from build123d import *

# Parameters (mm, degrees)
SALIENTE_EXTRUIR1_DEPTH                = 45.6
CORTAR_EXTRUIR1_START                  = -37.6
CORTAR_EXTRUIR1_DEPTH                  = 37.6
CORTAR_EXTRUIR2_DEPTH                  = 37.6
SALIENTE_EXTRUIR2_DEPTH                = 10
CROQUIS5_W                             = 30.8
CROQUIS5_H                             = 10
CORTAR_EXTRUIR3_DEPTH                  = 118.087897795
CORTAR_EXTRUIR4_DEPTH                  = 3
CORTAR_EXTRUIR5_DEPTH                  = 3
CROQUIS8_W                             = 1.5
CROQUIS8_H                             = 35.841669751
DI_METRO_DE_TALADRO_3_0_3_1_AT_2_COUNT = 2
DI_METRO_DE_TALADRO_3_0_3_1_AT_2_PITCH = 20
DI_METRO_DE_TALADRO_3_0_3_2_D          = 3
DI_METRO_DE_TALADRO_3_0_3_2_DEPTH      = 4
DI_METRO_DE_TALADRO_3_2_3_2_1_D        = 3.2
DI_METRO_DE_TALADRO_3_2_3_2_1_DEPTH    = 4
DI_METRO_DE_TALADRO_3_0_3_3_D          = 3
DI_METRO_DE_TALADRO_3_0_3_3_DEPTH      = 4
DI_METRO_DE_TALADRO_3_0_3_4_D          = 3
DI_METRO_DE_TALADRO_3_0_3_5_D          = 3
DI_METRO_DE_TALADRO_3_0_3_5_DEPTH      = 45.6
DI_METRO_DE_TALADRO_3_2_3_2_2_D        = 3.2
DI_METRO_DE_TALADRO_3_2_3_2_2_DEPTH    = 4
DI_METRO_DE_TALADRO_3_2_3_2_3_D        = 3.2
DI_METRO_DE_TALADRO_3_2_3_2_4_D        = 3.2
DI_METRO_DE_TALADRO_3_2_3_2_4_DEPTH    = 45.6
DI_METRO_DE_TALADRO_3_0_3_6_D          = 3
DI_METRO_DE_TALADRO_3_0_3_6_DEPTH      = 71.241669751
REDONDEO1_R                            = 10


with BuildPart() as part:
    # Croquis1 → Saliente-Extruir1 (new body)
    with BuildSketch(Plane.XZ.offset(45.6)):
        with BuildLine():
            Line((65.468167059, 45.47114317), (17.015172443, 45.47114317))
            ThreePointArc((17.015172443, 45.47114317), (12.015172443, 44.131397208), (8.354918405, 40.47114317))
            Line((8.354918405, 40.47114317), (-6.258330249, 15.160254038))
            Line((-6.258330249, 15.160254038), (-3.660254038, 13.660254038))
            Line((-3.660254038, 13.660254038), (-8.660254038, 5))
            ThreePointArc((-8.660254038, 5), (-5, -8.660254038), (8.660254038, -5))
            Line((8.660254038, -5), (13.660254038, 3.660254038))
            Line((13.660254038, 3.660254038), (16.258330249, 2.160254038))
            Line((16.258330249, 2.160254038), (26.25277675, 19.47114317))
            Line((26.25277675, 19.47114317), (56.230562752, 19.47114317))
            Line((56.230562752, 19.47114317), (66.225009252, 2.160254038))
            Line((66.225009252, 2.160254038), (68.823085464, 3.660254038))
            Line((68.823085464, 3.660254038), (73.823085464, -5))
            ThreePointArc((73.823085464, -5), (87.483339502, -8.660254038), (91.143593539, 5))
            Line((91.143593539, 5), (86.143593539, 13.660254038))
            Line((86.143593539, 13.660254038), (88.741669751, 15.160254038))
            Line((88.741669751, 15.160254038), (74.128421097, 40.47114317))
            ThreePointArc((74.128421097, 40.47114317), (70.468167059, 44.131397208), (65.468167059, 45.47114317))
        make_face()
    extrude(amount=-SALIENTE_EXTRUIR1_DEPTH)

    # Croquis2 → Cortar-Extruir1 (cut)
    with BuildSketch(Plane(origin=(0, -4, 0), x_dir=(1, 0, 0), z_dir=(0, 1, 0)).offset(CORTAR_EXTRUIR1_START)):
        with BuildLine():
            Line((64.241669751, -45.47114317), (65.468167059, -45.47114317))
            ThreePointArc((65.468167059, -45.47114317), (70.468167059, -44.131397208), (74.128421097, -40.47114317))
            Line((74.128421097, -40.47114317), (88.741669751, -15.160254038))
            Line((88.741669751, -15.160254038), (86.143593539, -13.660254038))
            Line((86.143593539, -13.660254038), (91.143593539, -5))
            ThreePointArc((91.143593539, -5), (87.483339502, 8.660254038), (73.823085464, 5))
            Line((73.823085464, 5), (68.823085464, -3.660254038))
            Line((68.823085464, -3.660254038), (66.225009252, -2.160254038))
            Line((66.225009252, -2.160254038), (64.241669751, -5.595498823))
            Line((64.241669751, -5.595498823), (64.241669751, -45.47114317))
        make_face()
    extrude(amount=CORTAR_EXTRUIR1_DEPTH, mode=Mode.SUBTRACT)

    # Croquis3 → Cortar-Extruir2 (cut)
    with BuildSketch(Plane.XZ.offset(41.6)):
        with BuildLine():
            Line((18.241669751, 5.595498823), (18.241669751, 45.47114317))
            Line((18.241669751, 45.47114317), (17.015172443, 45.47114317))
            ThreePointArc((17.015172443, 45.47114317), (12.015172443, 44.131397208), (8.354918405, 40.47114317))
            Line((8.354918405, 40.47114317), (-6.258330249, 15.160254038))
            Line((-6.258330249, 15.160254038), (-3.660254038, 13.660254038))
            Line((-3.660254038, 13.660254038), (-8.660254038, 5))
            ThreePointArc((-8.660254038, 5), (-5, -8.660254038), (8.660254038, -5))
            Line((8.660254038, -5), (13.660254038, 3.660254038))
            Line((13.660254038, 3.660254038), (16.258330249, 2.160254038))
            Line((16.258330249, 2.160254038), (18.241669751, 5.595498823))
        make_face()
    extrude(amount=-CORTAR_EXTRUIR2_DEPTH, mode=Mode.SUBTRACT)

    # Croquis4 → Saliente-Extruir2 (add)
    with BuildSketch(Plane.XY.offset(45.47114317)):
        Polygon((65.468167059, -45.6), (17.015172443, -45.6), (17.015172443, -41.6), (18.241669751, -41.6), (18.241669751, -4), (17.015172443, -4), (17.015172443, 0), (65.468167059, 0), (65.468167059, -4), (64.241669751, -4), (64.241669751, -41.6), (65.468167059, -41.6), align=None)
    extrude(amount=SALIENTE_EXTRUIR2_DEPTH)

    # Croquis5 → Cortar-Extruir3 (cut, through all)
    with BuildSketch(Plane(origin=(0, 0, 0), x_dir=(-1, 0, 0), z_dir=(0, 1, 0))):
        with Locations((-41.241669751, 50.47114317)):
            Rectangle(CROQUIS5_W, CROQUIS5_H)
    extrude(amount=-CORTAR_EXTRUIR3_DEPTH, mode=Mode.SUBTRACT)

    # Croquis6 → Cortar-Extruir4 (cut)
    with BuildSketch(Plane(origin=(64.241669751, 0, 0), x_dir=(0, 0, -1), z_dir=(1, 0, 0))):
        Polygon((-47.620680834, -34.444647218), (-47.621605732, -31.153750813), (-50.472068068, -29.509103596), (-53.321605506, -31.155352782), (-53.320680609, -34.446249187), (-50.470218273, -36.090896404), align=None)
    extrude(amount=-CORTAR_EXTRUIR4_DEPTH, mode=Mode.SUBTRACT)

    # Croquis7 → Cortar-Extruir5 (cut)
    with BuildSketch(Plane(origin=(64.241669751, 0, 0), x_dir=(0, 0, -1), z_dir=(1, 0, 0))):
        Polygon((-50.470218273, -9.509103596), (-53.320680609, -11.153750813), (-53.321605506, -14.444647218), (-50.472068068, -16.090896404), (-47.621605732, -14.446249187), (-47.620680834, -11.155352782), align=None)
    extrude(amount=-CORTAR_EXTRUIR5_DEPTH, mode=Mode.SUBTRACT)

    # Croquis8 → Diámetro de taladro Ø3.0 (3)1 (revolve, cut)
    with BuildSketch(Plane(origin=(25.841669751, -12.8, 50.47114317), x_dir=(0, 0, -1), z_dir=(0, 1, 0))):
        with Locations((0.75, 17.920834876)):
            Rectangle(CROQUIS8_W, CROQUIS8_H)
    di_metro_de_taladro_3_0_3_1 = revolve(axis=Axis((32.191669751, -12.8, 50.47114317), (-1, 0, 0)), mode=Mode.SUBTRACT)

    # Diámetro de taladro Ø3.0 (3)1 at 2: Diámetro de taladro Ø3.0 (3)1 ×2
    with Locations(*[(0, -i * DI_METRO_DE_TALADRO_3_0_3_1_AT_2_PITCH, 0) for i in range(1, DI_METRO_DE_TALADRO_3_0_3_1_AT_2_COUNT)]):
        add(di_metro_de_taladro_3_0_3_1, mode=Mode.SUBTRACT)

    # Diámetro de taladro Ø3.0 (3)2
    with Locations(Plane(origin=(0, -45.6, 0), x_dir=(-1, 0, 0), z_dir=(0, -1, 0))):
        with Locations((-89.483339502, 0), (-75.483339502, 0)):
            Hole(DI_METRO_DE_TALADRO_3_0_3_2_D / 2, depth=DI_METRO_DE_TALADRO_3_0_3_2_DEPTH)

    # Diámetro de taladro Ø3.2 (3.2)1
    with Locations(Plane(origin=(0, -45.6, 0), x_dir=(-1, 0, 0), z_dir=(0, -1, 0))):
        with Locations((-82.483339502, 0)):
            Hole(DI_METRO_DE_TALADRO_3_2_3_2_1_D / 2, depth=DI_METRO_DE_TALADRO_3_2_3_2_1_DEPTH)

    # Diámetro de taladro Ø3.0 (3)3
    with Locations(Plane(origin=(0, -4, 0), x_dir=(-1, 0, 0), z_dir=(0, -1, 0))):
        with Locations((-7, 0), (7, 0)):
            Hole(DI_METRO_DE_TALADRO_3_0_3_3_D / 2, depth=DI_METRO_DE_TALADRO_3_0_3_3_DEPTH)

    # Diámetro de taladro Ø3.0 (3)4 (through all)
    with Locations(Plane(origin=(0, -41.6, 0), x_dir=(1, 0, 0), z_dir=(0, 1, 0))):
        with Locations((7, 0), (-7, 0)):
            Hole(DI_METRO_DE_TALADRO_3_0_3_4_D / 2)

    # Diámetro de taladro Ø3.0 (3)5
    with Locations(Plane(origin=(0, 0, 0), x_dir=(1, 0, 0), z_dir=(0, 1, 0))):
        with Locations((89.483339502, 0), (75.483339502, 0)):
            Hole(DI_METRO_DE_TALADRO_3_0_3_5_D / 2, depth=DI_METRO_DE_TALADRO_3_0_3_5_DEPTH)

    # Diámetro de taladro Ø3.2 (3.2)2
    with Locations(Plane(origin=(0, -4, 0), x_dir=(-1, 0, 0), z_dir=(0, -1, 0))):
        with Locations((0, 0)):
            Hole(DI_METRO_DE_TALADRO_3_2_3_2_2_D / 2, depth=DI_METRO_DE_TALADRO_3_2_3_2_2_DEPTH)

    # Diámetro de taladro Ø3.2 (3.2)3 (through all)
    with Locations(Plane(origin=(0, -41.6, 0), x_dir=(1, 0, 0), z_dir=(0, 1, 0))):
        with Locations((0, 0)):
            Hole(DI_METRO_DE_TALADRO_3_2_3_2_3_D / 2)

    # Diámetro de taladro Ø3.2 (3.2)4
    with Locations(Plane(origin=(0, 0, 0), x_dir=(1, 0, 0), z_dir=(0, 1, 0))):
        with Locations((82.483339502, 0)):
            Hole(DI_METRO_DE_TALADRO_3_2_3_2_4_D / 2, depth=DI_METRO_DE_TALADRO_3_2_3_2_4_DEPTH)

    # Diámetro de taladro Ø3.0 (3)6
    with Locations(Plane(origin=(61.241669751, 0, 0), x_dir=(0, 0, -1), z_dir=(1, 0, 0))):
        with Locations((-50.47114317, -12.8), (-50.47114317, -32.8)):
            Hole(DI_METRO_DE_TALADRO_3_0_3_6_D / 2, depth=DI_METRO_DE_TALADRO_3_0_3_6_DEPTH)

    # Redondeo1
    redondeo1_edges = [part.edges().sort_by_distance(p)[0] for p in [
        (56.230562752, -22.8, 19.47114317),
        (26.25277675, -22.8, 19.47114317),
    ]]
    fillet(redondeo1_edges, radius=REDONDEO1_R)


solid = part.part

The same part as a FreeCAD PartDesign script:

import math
import FreeCAD as App
import Part
import Sketcher
from FreeCAD import Vector
Q = App.Units.Quantity


def edges_at(feature, points):
    """Names of the edges that pass closest to the given points."""
    edges = feature.Shape.Edges
    near = lambda p: min(range(len(edges)), key=lambda i: edges[i].distToShape(Part.Vertex(*p))[0])
    return sorted({f"Edge{near(p) + 1}" for p in points})

doc = App.newDocument("Part")
body = doc.addObject("PartDesign::Body", "Body")

# Sketch on XZ plane
sketch1 = body.newObject("Sketcher::SketchObject", "Sketch")
sketch1.AttachmentSupport = (doc.getObject("XZ_Plane"), [""])
sketch1.MapMode = "FlatFace"
sketch1.AttachmentOffset = App.Placement(Vector(0, 0, 45.6), App.Rotation())
sketch1.addGeometry(Part.LineSegment(Vector(65.468167, 45.471143, 0), Vector(17.015172, 45.471143, 0)), False)
sketch1.addGeometry(Part.ArcOfCircle(Part.Circle(Vector(17.015172, 35.471143, 0), Vector(0, 0, 1), 10), math.radians(90), math.radians(150)), False)
sketch1.addGeometry(Part.LineSegment(Vector(8.354918, 40.471143, 0), Vector(-6.25833, 15.160254, 0)), False)
sketch1.addGeometry(Part.LineSegment(Vector(-6.25833, 15.160254, 0), Vector(-3.660254, 13.660254, 0)), False)
sketch1.addGeometry(Part.LineSegment(Vector(-3.660254, 13.660254, 0), Vector(-8.660254, 5, 0)), False)
sketch1.addGeometry(Part.ArcOfCircle(Part.Circle(Vector(0, 0, 0), Vector(0, 0, 1), 10), math.radians(150), math.radians(330)), False)
sketch1.addGeometry(Part.LineSegment(Vector(8.660254, -5, 0), Vector(13.660254, 3.660254, 0)), False)
sketch1.addGeometry(Part.LineSegment(Vector(13.660254, 3.660254, 0), Vector(16.25833, 2.160254, 0)), False)
sketch1.addGeometry(Part.LineSegment(Vector(16.25833, 2.160254, 0), Vector(26.252777, 19.471143, 0)), False)
sketch1.addGeometry(Part.LineSegment(Vector(26.252777, 19.471143, 0), Vector(56.230563, 19.471143, 0)), False)
sketch1.addGeometry(Part.LineSegment(Vector(56.230563, 19.471143, 0), Vector(66.225009, 2.160254, 0)), False)
sketch1.addGeometry(Part.LineSegment(Vector(66.225009, 2.160254, 0), Vector(68.823085, 3.660254, 0)), False)
sketch1.addGeometry(Part.LineSegment(Vector(68.823085, 3.660254, 0), Vector(73.823085, -5, 0)), False)
sketch1.addGeometry(Part.ArcOfCircle(Part.Circle(Vector(82.48334, 0, 0), Vector(0, 0, 1), 10), math.radians(-150), math.radians(30)), False)
sketch1.addGeometry(Part.LineSegment(Vector(91.143594, 5, 0), Vector(86.143594, 13.660254, 0)), False)
sketch1.addGeometry(Part.LineSegment(Vector(86.143594, 13.660254, 0), Vector(88.74167, 15.160254, 0)), False)
sketch1.addGeometry(Part.LineSegment(Vector(88.74167, 15.160254, 0), Vector(74.128421, 40.471143, 0)), False)
sketch1.addGeometry(Part.ArcOfCircle(Part.Circle(Vector(65.468167, 35.471143, 0), Vector(0, 0, 1), 10), math.radians(30), math.radians(90)), False)
sketch1.addConstraint(Sketcher.Constraint("Tangent", 0, 2, 1, 1))
sketch1.addConstraint(Sketcher.Constraint("Tangent", 1, 2, 2, 1))
sketch1.addConstraint(Sketcher.Constraint("Coincident", 2, 2, 3, 1))
sketch1.addConstraint(Sketcher.Constraint("Coincident", 3, 2, 4, 1))
sketch1.addConstraint(Sketcher.Constraint("Tangent", 4, 2, 5, 1))
sketch1.addConstraint(Sketcher.Constraint("Tangent", 5, 2, 6, 1))
sketch1.addConstraint(Sketcher.Constraint("Coincident", 6, 2, 7, 1))
sketch1.addConstraint(Sketcher.Constraint("Coincident", 7, 2, 8, 1))
sketch1.addConstraint(Sketcher.Constraint("Coincident", 8, 2, 9, 1))
sketch1.addConstraint(Sketcher.Constraint("Coincident", 9, 2, 10, 1))
sketch1.addConstraint(Sketcher.Constraint("Coincident", 10, 2, 11, 1))
sketch1.addConstraint(Sketcher.Constraint("Coincident", 11, 2, 12, 1))
sketch1.addConstraint(Sketcher.Constraint("Tangent", 12, 2, 13, 1))
sketch1.addConstraint(Sketcher.Constraint("Tangent", 13, 2, 14, 1))
sketch1.addConstraint(Sketcher.Constraint("Coincident", 14, 2, 15, 1))
sketch1.addConstraint(Sketcher.Constraint("Coincident", 15, 2, 16, 1))
sketch1.addConstraint(Sketcher.Constraint("Tangent", 16, 2, 17, 1))
sketch1.addConstraint(Sketcher.Constraint("Tangent", 17, 2, 0, 1))
sketch1.addConstraint(Sketcher.Constraint("Horizontal", 0))
sketch1.addConstraint(Sketcher.Constraint("Horizontal", 9))
sketch1.addConstraint(Sketcher.Constraint("Coincident", 5, 3, -1, 1))
sketch1.addConstraint(Sketcher.Constraint("Equal", 1, 5))
sketch1.addConstraint(Sketcher.Constraint("Equal", 5, 13))
sketch1.addConstraint(Sketcher.Constraint("Equal", 13, 17))
sketch1.addConstraint(Sketcher.Constraint("PointOnObject", 13, 3, -1))
sketch1.addConstraint(Sketcher.Constraint("Perpendicular", 2, 3))
sketch1.addConstraint(Sketcher.Constraint("Perpendicular", 3, 4))
sketch1.addConstraint(Sketcher.Constraint("Parallel", 4, 6))
sketch1.addConstraint(Sketcher.Constraint("Perpendicular", 6, 7))
sketch1.addConstraint(Sketcher.Constraint("Perpendicular", 7, 8))
sketch1.addConstraint(Sketcher.Constraint("Perpendicular", 10, 11))
sketch1.addConstraint(Sketcher.Constraint("Perpendicular", 11, 12))
sketch1.addConstraint(Sketcher.Constraint("Parallel", 12, 14))
sketch1.addConstraint(Sketcher.Constraint("Perpendicular", 14, 15))
sketch1.addConstraint(Sketcher.Constraint("Perpendicular", 15, 16))
sketch1.addConstraint(Sketcher.Constraint("Horizontal", 7, 2, 10, 2))
sketch1.addConstraint(Sketcher.Constraint("Horizontal", 6, 2, 11, 2))
sketch1.addConstraint(Sketcher.Constraint("Horizontal", 5, 2, 12, 2))
sketch1.addConstraint(Sketcher.Constraint("Horizontal", 3, 2, 14, 2))
sketch1.addConstraint(Sketcher.Constraint("Horizontal", 2, 2, 15, 2))
sketch1.addConstraint(Sketcher.Constraint("Equal", 4, 6))
sketch1.addConstraint(Sketcher.Constraint("Equal", 3, 7))
sketch1.addConstraint(Sketcher.Constraint("Radius", 1, 10.0))
sketch1.addConstraint(Sketcher.Constraint("Angle", 2, Q("-120 deg")))
sketch1.addConstraint(Sketcher.Constraint("Distance", 3, 3.0))
sketch1.addConstraint(Sketcher.Constraint("Distance", 4, 10.0))
sketch1.addConstraint(Sketcher.Constraint("DistanceY", 8, 2, 1, 3, 16.0))
sketch1.addConstraint(Sketcher.Constraint("DistanceX", 0, 2, 0, 1, 48.452995))
sketch1.addConstraint(Sketcher.Constraint("DistanceX", -1, 1, 13, 3, 82.48334))
pad1 = body.newObject("PartDesign::Pad", "Pad")
pad1.Profile = sketch1
pad1.Length = 45.6
pad1.Reversed = True

# Sketch on XZ plane
sketch2 = body.newObject("Sketcher::SketchObject", "Sketch001")
sketch2.AttachmentSupport = (doc.getObject("XZ_Plane"), [""])
sketch2.MapMode = "FlatFace"
sketch2.AttachmentOffset = App.Placement(Vector(0, 0, 41.6), App.Rotation())
sketch2.addGeometry(Part.LineSegment(Vector(64.24167, 45.471143, 0), Vector(65.468167, 45.471143, 0)), False)
sketch2.addGeometry(Part.ArcOfCircle(Part.Circle(Vector(65.468167, 35.471143, 0), Vector(0, 0, 1), 10), math.radians(30), math.radians(90)), False)
sketch2.addGeometry(Part.LineSegment(Vector(74.128421, 40.471143, 0), Vector(88.74167, 15.160254, 0)), False)
sketch2.addGeometry(Part.LineSegment(Vector(88.74167, 15.160254, 0), Vector(86.143594, 13.660254, 0)), False)
sketch2.addGeometry(Part.LineSegment(Vector(86.143594, 13.660254, 0), Vector(91.143594, 5, 0)), False)
sketch2.addGeometry(Part.ArcOfCircle(Part.Circle(Vector(82.48334, 0, 0), Vector(0, 0, 1), 10), math.radians(-150), math.radians(30)), False)
sketch2.addGeometry(Part.LineSegment(Vector(73.823085, -5, 0), Vector(68.823085, 3.660254, 0)), False)
sketch2.addGeometry(Part.LineSegment(Vector(68.823085, 3.660254, 0), Vector(66.225009, 2.160254, 0)), False)
sketch2.addGeometry(Part.LineSegment(Vector(66.225009, 2.160254, 0), Vector(64.24167, 5.595499, 0)), False)
sketch2.addGeometry(Part.LineSegment(Vector(64.24167, 5.595499, 0), Vector(64.24167, 45.471143, 0)), False)
sketch2.addConstraint(Sketcher.Constraint("Tangent", 0, 2, 1, 2))
sketch2.addConstraint(Sketcher.Constraint("Tangent", 1, 1, 2, 1))
sketch2.addConstraint(Sketcher.Constraint("Coincident", 2, 2, 3, 1))
sketch2.addConstraint(Sketcher.Constraint("Coincident", 3, 2, 4, 1))
sketch2.addConstraint(Sketcher.Constraint("Tangent", 4, 2, 5, 2))
sketch2.addConstraint(Sketcher.Constraint("Tangent", 5, 1, 6, 1))
sketch2.addConstraint(Sketcher.Constraint("Coincident", 6, 2, 7, 1))
sketch2.addConstraint(Sketcher.Constraint("Coincident", 7, 2, 8, 1))
sketch2.addConstraint(Sketcher.Constraint("Coincident", 8, 2, 9, 1))
sketch2.addConstraint(Sketcher.Constraint("Coincident", 9, 2, 0, 1))
sketch2.addConstraint(Sketcher.Constraint("Horizontal", 0))
sketch2.addConstraint(Sketcher.Constraint("Vertical", 9))
sketch2.addConstraint(Sketcher.Constraint("Equal", 1, 5))
sketch2.addConstraint(Sketcher.Constraint("PointOnObject", 5, 3, -1))
sketch2.addConstraint(Sketcher.Constraint("Perpendicular", 2, 3))
sketch2.addConstraint(Sketcher.Constraint("Perpendicular", 3, 4))
sketch2.addConstraint(Sketcher.Constraint("Parallel", 4, 6))
sketch2.addConstraint(Sketcher.Constraint("Perpendicular", 6, 7))
sketch2.addConstraint(Sketcher.Constraint("Perpendicular", 7, 8))
sketch2.addConstraint(Sketcher.Constraint("Equal", 4, 6))
sketch2.addConstraint(Sketcher.Constraint("Equal", 3, 7))
sketch2.addConstraint(Sketcher.Constraint("Radius", 1, 10.0))
sketch2.addConstraint(Sketcher.Constraint("Angle", 2, Q("-60 deg")))
sketch2.addConstraint(Sketcher.Constraint("Distance", 3, 3.0))
sketch2.addConstraint(Sketcher.Constraint("Distance", 4, 10.0))
sketch2.addConstraint(Sketcher.Constraint("DistanceX", 9, 2, 2, 2, 24.5))
sketch2.addConstraint(Sketcher.Constraint("DistanceX", 0, 1, 0, 2, 1.226497))
sketch2.addConstraint(Sketcher.Constraint("DistanceX", -1, 1, 5, 3, 82.48334))
pocket1 = body.newObject("PartDesign::Pocket", "Pocket")
pocket1.Profile = sketch2
pocket1.Length = 37.6

# Sketch on XZ plane
sketch3 = body.newObject("Sketcher::SketchObject", "Sketch002")
sketch3.AttachmentSupport = (doc.getObject("XZ_Plane"), [""])
sketch3.MapMode = "FlatFace"
sketch3.AttachmentOffset = App.Placement(Vector(0, 0, 41.6), App.Rotation())
sketch3.addGeometry(Part.LineSegment(Vector(18.24167, 5.595499, 0), Vector(18.24167, 45.471143, 0)), False)
sketch3.addGeometry(Part.LineSegment(Vector(18.24167, 45.471143, 0), Vector(17.015172, 45.471143, 0)), False)
sketch3.addGeometry(Part.ArcOfCircle(Part.Circle(Vector(17.015172, 35.471143, 0), Vector(0, 0, 1), 10), math.radians(90), math.radians(150)), False)
sketch3.addGeometry(Part.LineSegment(Vector(8.354918, 40.471143, 0), Vector(-6.25833, 15.160254, 0)), False)
sketch3.addGeometry(Part.LineSegment(Vector(-6.25833, 15.160254, 0), Vector(-3.660254, 13.660254, 0)), False)
sketch3.addGeometry(Part.LineSegment(Vector(-3.660254, 13.660254, 0), Vector(-8.660254, 5, 0)), False)
sketch3.addGeometry(Part.ArcOfCircle(Part.Circle(Vector(0, 0, 0), Vector(0, 0, 1), 10), math.radians(150), math.radians(330)), False)
sketch3.addGeometry(Part.LineSegment(Vector(8.660254, -5, 0), Vector(13.660254, 3.660254, 0)), False)
sketch3.addGeometry(Part.LineSegment(Vector(13.660254, 3.660254, 0), Vector(16.25833, 2.160254, 0)), False)
sketch3.addGeometry(Part.LineSegment(Vector(16.25833, 2.160254, 0), Vector(18.24167, 5.595499, 0)), False)
sketch3.addConstraint(Sketcher.Constraint("Coincident", 0, 2, 1, 1))
sketch3.addConstraint(Sketcher.Constraint("Tangent", 1, 2, 2, 1))
sketch3.addConstraint(Sketcher.Constraint("Tangent", 2, 2, 3, 1))
sketch3.addConstraint(Sketcher.Constraint("Coincident", 3, 2, 4, 1))
sketch3.addConstraint(Sketcher.Constraint("Coincident", 4, 2, 5, 1))
sketch3.addConstraint(Sketcher.Constraint("Tangent", 5, 2, 6, 1))
sketch3.addConstraint(Sketcher.Constraint("Tangent", 6, 2, 7, 1))
sketch3.addConstraint(Sketcher.Constraint("Coincident", 7, 2, 8, 1))
sketch3.addConstraint(Sketcher.Constraint("Coincident", 8, 2, 9, 1))
sketch3.addConstraint(Sketcher.Constraint("Coincident", 9, 2, 0, 1))
sketch3.addConstraint(Sketcher.Constraint("Vertical", 0))
sketch3.addConstraint(Sketcher.Constraint("Horizontal", 1))
sketch3.addConstraint(Sketcher.Constraint("Coincident", 6, 3, -1, 1))
sketch3.addConstraint(Sketcher.Constraint("Equal", 2, 6))
sketch3.addConstraint(Sketcher.Constraint("Perpendicular", 3, 4))
sketch3.addConstraint(Sketcher.Constraint("Perpendicular", 4, 5))
sketch3.addConstraint(Sketcher.Constraint("Parallel", 5, 7))
sketch3.addConstraint(Sketcher.Constraint("Perpendicular", 7, 8))
sketch3.addConstraint(Sketcher.Constraint("Perpendicular", 8, 9))
sketch3.addConstraint(Sketcher.Constraint("Equal", 5, 7))
sketch3.addConstraint(Sketcher.Constraint("Equal", 4, 8))
sketch3.addConstraint(Sketcher.Constraint("Radius", 2, 10.0))
sketch3.addConstraint(Sketcher.Constraint("Angle", 3, Q("-120 deg")))
sketch3.addConstraint(Sketcher.Constraint("Distance", 4, 3.0))
sketch3.addConstraint(Sketcher.Constraint("Distance", 5, 10.0))
sketch3.addConstraint(Sketcher.Constraint("DistanceX", 3, 2, 0, 2, 24.5))
sketch3.addConstraint(Sketcher.Constraint("DistanceX", 1, 2, 1, 1, 1.226497))
pocket2 = body.newObject("PartDesign::Pocket", "Pocket001")
pocket2.Profile = sketch3
pocket2.Length = 37.6

# Sketch on XY plane
sketch4 = body.newObject("Sketcher::SketchObject", "Sketch003")
sketch4.AttachmentSupport = (doc.getObject("XY_Plane"), [""])
sketch4.MapMode = "FlatFace"
sketch4.AttachmentOffset = App.Placement(Vector(0, 0, 45.471143), App.Rotation())
sketch4.addGeometry(Part.LineSegment(Vector(17.015172, -45.6, 0), Vector(65.468167, -45.6, 0)), False)
sketch4.addGeometry(Part.LineSegment(Vector(65.468167, -45.6, 0), Vector(65.468167, -41.6, 0)), False)
sketch4.addGeometry(Part.LineSegment(Vector(65.468167, -41.6, 0), Vector(64.24167, -41.6, 0)), False)
sketch4.addGeometry(Part.LineSegment(Vector(64.24167, -41.6, 0), Vector(64.24167, -4, 0)), False)
sketch4.addGeometry(Part.LineSegment(Vector(64.24167, -4, 0), Vector(65.468167, -4, 0)), False)
sketch4.addGeometry(Part.LineSegment(Vector(65.468167, -4, 0), Vector(65.468167, 0, 0)), False)
sketch4.addGeometry(Part.LineSegment(Vector(65.468167, 0, 0), Vector(17.015172, 0, 0)), False)
sketch4.addGeometry(Part.LineSegment(Vector(17.015172, 0, 0), Vector(17.015172, -4, 0)), False)
sketch4.addGeometry(Part.LineSegment(Vector(17.015172, -4, 0), Vector(18.24167, -4, 0)), False)
sketch4.addGeometry(Part.LineSegment(Vector(18.24167, -4, 0), Vector(18.24167, -41.6, 0)), False)
sketch4.addGeometry(Part.LineSegment(Vector(18.24167, -41.6, 0), Vector(17.015172, -41.6, 0)), False)
sketch4.addGeometry(Part.LineSegment(Vector(17.015172, -41.6, 0), Vector(17.015172, -45.6, 0)), False)
sketch4.addConstraint(Sketcher.Constraint("Coincident", 0, 2, 1, 1))
sketch4.addConstraint(Sketcher.Constraint("Coincident", 1, 2, 2, 1))
sketch4.addConstraint(Sketcher.Constraint("Coincident", 2, 2, 3, 1))
sketch4.addConstraint(Sketcher.Constraint("Coincident", 3, 2, 4, 1))
sketch4.addConstraint(Sketcher.Constraint("Coincident", 4, 2, 5, 1))
sketch4.addConstraint(Sketcher.Constraint("Coincident", 5, 2, 6, 1))
sketch4.addConstraint(Sketcher.Constraint("Coincident", 6, 2, 7, 1))
sketch4.addConstraint(Sketcher.Constraint("Coincident", 7, 2, 8, 1))
sketch4.addConstraint(Sketcher.Constraint("Coincident", 8, 2, 9, 1))
sketch4.addConstraint(Sketcher.Constraint("Coincident", 9, 2, 10, 1))
sketch4.addConstraint(Sketcher.Constraint("Coincident", 10, 2, 11, 1))
sketch4.addConstraint(Sketcher.Constraint("Coincident", 11, 2, 0, 1))
sketch4.addConstraint(Sketcher.Constraint("Horizontal", 0))
sketch4.addConstraint(Sketcher.Constraint("Vertical", 1))
sketch4.addConstraint(Sketcher.Constraint("Horizontal", 2))
sketch4.addConstraint(Sketcher.Constraint("Vertical", 3))
sketch4.addConstraint(Sketcher.Constraint("Horizontal", 4))
sketch4.addConstraint(Sketcher.Constraint("Vertical", 5))
sketch4.addConstraint(Sketcher.Constraint("Horizontal", 6))
sketch4.addConstraint(Sketcher.Constraint("Vertical", 7))
sketch4.addConstraint(Sketcher.Constraint("Horizontal", 8))
sketch4.addConstraint(Sketcher.Constraint("Vertical", 9))
sketch4.addConstraint(Sketcher.Constraint("Horizontal", 10))
sketch4.addConstraint(Sketcher.Constraint("Vertical", 11))
sketch4.addConstraint(Sketcher.Constraint("PointOnObject", 5, 2, -1))
sketch4.addConstraint(Sketcher.Constraint("Horizontal", 4, 2, 7, 2))
sketch4.addConstraint(Sketcher.Constraint("Horizontal", 2, 2, 9, 2))
sketch4.addConstraint(Sketcher.Constraint("Vertical", 1, 2, 4, 2))
sketch4.addConstraint(Sketcher.Constraint("Vertical", 7, 2, 10, 2))
sketch4.addConstraint(Sketcher.Constraint("Equal", 4, 8))
sketch4.addConstraint(Sketcher.Constraint("Equal", 1, 5))
sketch4.addConstraint(Sketcher.Constraint("DistanceY", 1, 1, 1, 2, 4.0))
sketch4.addConstraint(Sketcher.Constraint("DistanceY", 3, 1, 3, 2, 37.6))
sketch4.addConstraint(Sketcher.Constraint("DistanceX", 8, 2, 3, 2, 46.0))
sketch4.addConstraint(Sketcher.Constraint("DistanceX", 0, 1, 0, 2, 48.452995))
sketch4.addConstraint(Sketcher.Constraint("DistanceX", -1, 1, 2, 2, 64.24167))
pad2 = body.newObject("PartDesign::Pad", "Pad001")
pad2.Profile = sketch4
pad2.Length = 10

# Sketch on XZ plane
sketch5 = body.newObject("Sketcher::SketchObject", "Sketch004")
sketch5.AttachmentSupport = (doc.getObject("XZ_Plane"), [""])
sketch5.MapMode = "FlatFace"
sketch5.addGeometry(Part.LineSegment(Vector(56.64167, 55.471143, 0), Vector(56.64167, 45.471143, 0)), False)
sketch5.addGeometry(Part.LineSegment(Vector(56.64167, 45.471143, 0), Vector(25.84167, 45.471143, 0)), False)
sketch5.addGeometry(Part.LineSegment(Vector(25.84167, 45.471143, 0), Vector(25.84167, 55.471143, 0)), False)
sketch5.addGeometry(Part.LineSegment(Vector(25.84167, 55.471143, 0), Vector(56.64167, 55.471143, 0)), False)
sketch5.addConstraint(Sketcher.Constraint("Coincident", 0, 2, 1, 1))
sketch5.addConstraint(Sketcher.Constraint("Coincident", 1, 2, 2, 1))
sketch5.addConstraint(Sketcher.Constraint("Coincident", 2, 2, 3, 1))
sketch5.addConstraint(Sketcher.Constraint("Coincident", 3, 2, 0, 1))
sketch5.addConstraint(Sketcher.Constraint("Vertical", 0))
sketch5.addConstraint(Sketcher.Constraint("Horizontal", 1))
sketch5.addConstraint(Sketcher.Constraint("Vertical", 2))
sketch5.addConstraint(Sketcher.Constraint("Horizontal", 3))
sketch5.addConstraint(Sketcher.Constraint("DistanceY", 0, 2, 0, 1, 10.0))
sketch5.addConstraint(Sketcher.Constraint("DistanceX", 1, 2, 1, 1, 30.8))
sketch5.addConstraint(Sketcher.Constraint("DistanceX", -1, 1, 0, 2, 56.64167))
sketch5.addConstraint(Sketcher.Constraint("DistanceY", -1, 1, 0, 2, 45.471143))
pocket3 = body.newObject("PartDesign::Pocket", "Pocket002")
pocket3.Profile = sketch5
pocket3.Type = "ThroughAll"
pocket3.Reversed = True

# Sketch on YZ plane
sketch6 = body.newObject("Sketcher::SketchObject", "Sketch005")
sketch6.AttachmentSupport = (doc.getObject("YZ_Plane"), [""])
sketch6.MapMode = "FlatFace"
sketch6.AttachmentOffset = App.Placement(Vector(0, 0, 64.24167), App.Rotation())
sketch6.addGeometry(Part.LineSegment(Vector(-34.444647, 47.620681, 0), Vector(-31.153751, 47.621606, 0)), False)
sketch6.addGeometry(Part.LineSegment(Vector(-31.153751, 47.621606, 0), Vector(-29.509104, 50.472068, 0)), False)
sketch6.addGeometry(Part.LineSegment(Vector(-29.509104, 50.472068, 0), Vector(-31.155353, 53.321606, 0)), False)
sketch6.addGeometry(Part.LineSegment(Vector(-31.155353, 53.321606, 0), Vector(-34.446249, 53.320681, 0)), False)
sketch6.addGeometry(Part.LineSegment(Vector(-34.446249, 53.320681, 0), Vector(-36.090896, 50.470218, 0)), False)
sketch6.addGeometry(Part.LineSegment(Vector(-36.090896, 50.470218, 0), Vector(-34.444647, 47.620681, 0)), False)
sketch6.addConstraint(Sketcher.Constraint("Coincident", 0, 2, 1, 1))
sketch6.addConstraint(Sketcher.Constraint("Coincident", 1, 2, 2, 1))
sketch6.addConstraint(Sketcher.Constraint("Coincident", 2, 2, 3, 1))
sketch6.addConstraint(Sketcher.Constraint("Coincident", 3, 2, 4, 1))
sketch6.addConstraint(Sketcher.Constraint("Coincident", 4, 2, 5, 1))
sketch6.addConstraint(Sketcher.Constraint("Coincident", 5, 2, 0, 1))
sketch6.addConstraint(Sketcher.Constraint("Parallel", 0, 3))
sketch6.addConstraint(Sketcher.Constraint("Parallel", 1, 4))
sketch6.addConstraint(Sketcher.Constraint("Parallel", 2, 5))
sketch6.addConstraint(Sketcher.Constraint("Equal", 0, 1))
sketch6.addConstraint(Sketcher.Constraint("Equal", 1, 2))
sketch6.addConstraint(Sketcher.Constraint("Equal", 2, 3))
sketch6.addConstraint(Sketcher.Constraint("DistanceY", 0, 2, 2, 2, 5.7))
sketch6.addConstraint(Sketcher.Constraint("DistanceX", 2, 2, 0, 2, 0.001602))
sketch6.addConstraint(Sketcher.Constraint("DistanceX", 3, 2, 0, 2, 3.292498))
sketch6.addConstraint(Sketcher.Constraint("DistanceX", 0, 2, -1, 1, 31.153751))
sketch6.addConstraint(Sketcher.Constraint("DistanceY", -1, 1, 1, 2, 50.472068))
sketch6.addConstraint(Sketcher.Constraint("DistanceY", -1, 1, 3, 2, 53.320681))
pocket4 = body.newObject("PartDesign::Pocket", "Pocket003")
pocket4.Profile = sketch6
pocket4.Length = 3

# Sketch on YZ plane
sketch7 = body.newObject("Sketcher::SketchObject", "Sketch006")
sketch7.AttachmentSupport = (doc.getObject("YZ_Plane"), [""])
sketch7.MapMode = "FlatFace"
sketch7.AttachmentOffset = App.Placement(Vector(0, 0, 64.24167), App.Rotation())
sketch7.addGeometry(Part.LineSegment(Vector(-9.509104, 50.470218, 0), Vector(-11.153751, 53.320681, 0)), False)
sketch7.addGeometry(Part.LineSegment(Vector(-11.153751, 53.320681, 0), Vector(-14.444647, 53.321606, 0)), False)
sketch7.addGeometry(Part.LineSegment(Vector(-14.444647, 53.321606, 0), Vector(-16.090896, 50.472068, 0)), False)
sketch7.addGeometry(Part.LineSegment(Vector(-16.090896, 50.472068, 0), Vector(-14.446249, 47.621606, 0)), False)
sketch7.addGeometry(Part.LineSegment(Vector(-14.446249, 47.621606, 0), Vector(-11.155353, 47.620681, 0)), False)
sketch7.addGeometry(Part.LineSegment(Vector(-11.155353, 47.620681, 0), Vector(-9.509104, 50.470218, 0)), False)
sketch7.addConstraint(Sketcher.Constraint("Coincident", 0, 2, 1, 1))
sketch7.addConstraint(Sketcher.Constraint("Coincident", 1, 2, 2, 1))
sketch7.addConstraint(Sketcher.Constraint("Coincident", 2, 2, 3, 1))
sketch7.addConstraint(Sketcher.Constraint("Coincident", 3, 2, 4, 1))
sketch7.addConstraint(Sketcher.Constraint("Coincident", 4, 2, 5, 1))
sketch7.addConstraint(Sketcher.Constraint("Coincident", 5, 2, 0, 1))
sketch7.addConstraint(Sketcher.Constraint("Parallel", 0, 3))
sketch7.addConstraint(Sketcher.Constraint("Parallel", 1, 4))
sketch7.addConstraint(Sketcher.Constraint("Parallel", 2, 5))
sketch7.addConstraint(Sketcher.Constraint("Equal", 0, 1))
sketch7.addConstraint(Sketcher.Constraint("Equal", 1, 2))
sketch7.addConstraint(Sketcher.Constraint("Equal", 2, 3))
sketch7.addConstraint(Sketcher.Constraint("DistanceY", 3, 2, 1, 2, 5.7))
sketch7.addConstraint(Sketcher.Constraint("DistanceX", 3, 2, 1, 2, 0.001602))
sketch7.addConstraint(Sketcher.Constraint("DistanceX", 3, 2, 0, 2, 3.292498))
sketch7.addConstraint(Sketcher.Constraint("DistanceX", 0, 2, -1, 1, 11.153751))
sketch7.addConstraint(Sketcher.Constraint("DistanceY", -1, 1, 0, 2, 53.320681))
sketch7.addConstraint(Sketcher.Constraint("DistanceY", -1, 1, 2, 2, 50.472068))
pocket5 = body.newObject("PartDesign::Pocket", "Pocket004")
pocket5.Profile = sketch7
pocket5.Length = 3

# Sketch on XZ plane
sketch8 = body.newObject("Sketcher::SketchObject", "Sketch007")
sketch8.AttachmentSupport = (doc.getObject("XZ_Plane"), [""])
sketch8.MapMode = "FlatFace"
sketch8.AttachmentOffset = App.Placement(Vector(0, 0, 12.8), App.Rotation())
sketch8.addGeometry(Part.LineSegment(Vector(-10, 50.471143, 0), Vector(25.84167, 50.471143, 0)), False)
sketch8.addGeometry(Part.LineSegment(Vector(25.84167, 50.471143, 0), Vector(25.84167, 48.971143, 0)), False)
sketch8.addGeometry(Part.LineSegment(Vector(25.84167, 48.971143, 0), Vector(-10, 48.971143, 0)), False)
sketch8.addGeometry(Part.LineSegment(Vector(-10, 48.971143, 0), Vector(-10, 50.471143, 0)), False)
sketch8.addGeometry(Part.LineSegment(Vector(25.84167, 50.471143, 0), Vector(-10, 50.471143, 0)), True)  # axis
sketch8.addConstraint(Sketcher.Constraint("Coincident", 0, 2, 1, 1))
sketch8.addConstraint(Sketcher.Constraint("Coincident", 1, 2, 2, 1))
sketch8.addConstraint(Sketcher.Constraint("Coincident", 2, 2, 3, 1))
sketch8.addConstraint(Sketcher.Constraint("Coincident", 3, 2, 0, 1))
sketch8.addConstraint(Sketcher.Constraint("Horizontal", 0))
sketch8.addConstraint(Sketcher.Constraint("Vertical", 1))
sketch8.addConstraint(Sketcher.Constraint("Horizontal", 2))
sketch8.addConstraint(Sketcher.Constraint("Vertical", 3))
sketch8.addConstraint(Sketcher.Constraint("Horizontal", 4))
sketch8.addConstraint(Sketcher.Constraint("Coincident", 4, 1, 0, 2))
sketch8.addConstraint(Sketcher.Constraint("Vertical", 2, 2, 4, 2))
sketch8.addConstraint(Sketcher.Constraint("DistanceY", 1, 2, 1, 1, 1.5))
sketch8.addConstraint(Sketcher.Constraint("DistanceX", 2, 2, -1, 1, 10.0))
sketch8.addConstraint(Sketcher.Constraint("DistanceX", 0, 1, 0, 2, 35.84167))
sketch8.addConstraint(Sketcher.Constraint("DistanceY", -1, 1, 0, 2, 50.471143))
groove = body.newObject("PartDesign::Groove", "Groove")
groove.Profile = sketch8
groove.ReferenceAxis = (sketch8, ["Axis0"])
groove.Angle = 360
doc.recompute()

linearpattern = body.newObject("PartDesign::LinearPattern", "LinearPattern")
linearpattern.Originals = [groove]
linearpattern.Direction = (doc.getObject("Y_Axis"), [""])
linearpattern.Mode = "offset"
linearpattern.Offset = 20
linearpattern.Occurrences = 2
linearpattern.Reversed = True
body.Tip = linearpattern

# Sketch on XZ plane
sketch9 = body.newObject("Sketcher::SketchObject", "Sketch008")
sketch9.AttachmentSupport = (doc.getObject("XZ_Plane"), [""])
sketch9.MapMode = "FlatFace"
sketch9.AttachmentOffset = App.Placement(Vector(0, 0, 45.6), App.Rotation())
sketch9.addGeometry(Part.Circle(Vector(89.48334, 0, 0), Vector(0, 0, 1), 1.5), False)
sketch9.addGeometry(Part.Circle(Vector(75.48334, 0, 0), Vector(0, 0, 1), 1.5), False)
sketch9.addConstraint(Sketcher.Constraint("Equal", 0, 1))
sketch9.addConstraint(Sketcher.Constraint("PointOnObject", 0, 3, -1))
sketch9.addConstraint(Sketcher.Constraint("PointOnObject", 1, 3, -1))
sketch9.addConstraint(Sketcher.Constraint("Diameter", 0, 3.0))
sketch9.addConstraint(Sketcher.Constraint("DistanceX", 1, 3, 0, 3, 14.0))
sketch9.addConstraint(Sketcher.Constraint("DistanceX", -1, 1, 0, 3, 89.48334))
doc.recompute()
hole = body.newObject("PartDesign::Hole", "Hole")
hole.Profile = sketch9
hole.ThreadType = "None"
hole.Diameter = 3
hole.DepthType = "Dimension"
hole.Depth = 4
hole.DrillPoint = "Flat"

# Sketch on XZ plane
sketch10 = body.newObject("Sketcher::SketchObject", "Sketch009")
sketch10.AttachmentSupport = (doc.getObject("XZ_Plane"), [""])
sketch10.MapMode = "FlatFace"
sketch10.AttachmentOffset = App.Placement(Vector(0, 0, 45.6), App.Rotation())
sketch10.addGeometry(Part.Circle(Vector(82.48334, 0, 0), Vector(0, 0, 1), 1.6), False)
sketch10.addConstraint(Sketcher.Constraint("PointOnObject", 0, 3, -1))
sketch10.addConstraint(Sketcher.Constraint("Diameter", 0, 3.2))
sketch10.addConstraint(Sketcher.Constraint("DistanceX", -1, 1, 0, 3, 82.48334))
doc.recompute()
hole2 = body.newObject("PartDesign::Hole", "Hole001")
hole2.Profile = sketch10
hole2.ThreadType = "None"
hole2.Diameter = 3.2
hole2.DepthType = "Dimension"
hole2.Depth = 4
hole2.DrillPoint = "Flat"

# Sketch on XZ plane
sketch11 = body.newObject("Sketcher::SketchObject", "Sketch010")
sketch11.AttachmentSupport = (doc.getObject("XZ_Plane"), [""])
sketch11.MapMode = "FlatFace"
sketch11.AttachmentOffset = App.Placement(Vector(0, 0, 4), App.Rotation())
sketch11.addGeometry(Part.Circle(Vector(7, 0, 0), Vector(0, 0, 1), 1.5), False)
sketch11.addGeometry(Part.Circle(Vector(-7, 0, 0), Vector(0, 0, 1), 1.5), False)
sketch11.addConstraint(Sketcher.Constraint("Equal", 0, 1))
sketch11.addConstraint(Sketcher.Constraint("Symmetric", 0, 3, 1, 3, -1, 1))
sketch11.addConstraint(Sketcher.Constraint("PointOnObject", 0, 3, -1))
sketch11.addConstraint(Sketcher.Constraint("Diameter", 0, 3.0))
sketch11.addConstraint(Sketcher.Constraint("DistanceX", -1, 1, 0, 3, 7.0))
doc.recompute()
hole3 = body.newObject("PartDesign::Hole", "Hole002")
hole3.Profile = sketch11
hole3.ThreadType = "None"
hole3.Diameter = 3
hole3.DepthType = "Dimension"
hole3.Depth = 4
hole3.DrillPoint = "Flat"

# Sketch on XZ plane
sketch12 = body.newObject("Sketcher::SketchObject", "Sketch011")
sketch12.AttachmentSupport = (doc.getObject("XZ_Plane"), [""])
sketch12.MapMode = "FlatFace"
sketch12.AttachmentOffset = App.Placement(Vector(0, 0, 41.6), App.Rotation())
sketch12.addGeometry(Part.Circle(Vector(7, 0, 0), Vector(0, 0, 1), 1.5), False)
sketch12.addGeometry(Part.Circle(Vector(-7, 0, 0), Vector(0, 0, 1), 1.5), False)
sketch12.addConstraint(Sketcher.Constraint("Equal", 0, 1))
sketch12.addConstraint(Sketcher.Constraint("Symmetric", 0, 3, 1, 3, -1, 1))
sketch12.addConstraint(Sketcher.Constraint("PointOnObject", 0, 3, -1))
sketch12.addConstraint(Sketcher.Constraint("Diameter", 0, 3.0))
sketch12.addConstraint(Sketcher.Constraint("DistanceX", -1, 1, 0, 3, 7.0))
doc.recompute()
hole4 = body.newObject("PartDesign::Hole", "Hole003")
hole4.Profile = sketch12
hole4.ThreadType = "None"
hole4.Diameter = 3
hole4.DepthType = "ThroughAll"
hole4.Reversed = True

# Sketch on XZ plane
sketch13 = body.newObject("Sketcher::SketchObject", "Sketch012")
sketch13.AttachmentSupport = (doc.getObject("XZ_Plane"), [""])
sketch13.MapMode = "FlatFace"
sketch13.addGeometry(Part.Circle(Vector(89.48334, 0, 0), Vector(0, 0, 1), 1.5), False)
sketch13.addGeometry(Part.Circle(Vector(75.48334, 0, 0), Vector(0, 0, 1), 1.5), False)
sketch13.addConstraint(Sketcher.Constraint("Equal", 0, 1))
sketch13.addConstraint(Sketcher.Constraint("PointOnObject", 0, 3, -1))
sketch13.addConstraint(Sketcher.Constraint("PointOnObject", 1, 3, -1))
sketch13.addConstraint(Sketcher.Constraint("Diameter", 0, 3.0))
sketch13.addConstraint(Sketcher.Constraint("DistanceX", 1, 3, 0, 3, 14.0))
sketch13.addConstraint(Sketcher.Constraint("DistanceX", -1, 1, 0, 3, 89.48334))
doc.recompute()
hole5 = body.newObject("PartDesign::Hole", "Hole004")
hole5.Profile = sketch13
hole5.ThreadType = "None"
hole5.Diameter = 3
hole5.DepthType = "Dimension"
hole5.Depth = 45.6
hole5.DrillPoint = "Flat"
hole5.Reversed = True

# Sketch on XZ plane
sketch14 = body.newObject("Sketcher::SketchObject", "Sketch013")
sketch14.AttachmentSupport = (doc.getObject("XZ_Plane"), [""])
sketch14.MapMode = "FlatFace"
sketch14.AttachmentOffset = App.Placement(Vector(0, 0, 4), App.Rotation())
sketch14.addGeometry(Part.Circle(Vector(0, 0, 0), Vector(0, 0, 1), 1.6), False)
sketch14.addConstraint(Sketcher.Constraint("Coincident", 0, 3, -1, 1))
sketch14.addConstraint(Sketcher.Constraint("Diameter", 0, 3.2))
doc.recompute()
hole6 = body.newObject("PartDesign::Hole", "Hole005")
hole6.Profile = sketch14
hole6.ThreadType = "None"
hole6.Diameter = 3.2
hole6.DepthType = "Dimension"
hole6.Depth = 4
hole6.DrillPoint = "Flat"

# Sketch on XZ plane
sketch15 = body.newObject("Sketcher::SketchObject", "Sketch014")
sketch15.AttachmentSupport = (doc.getObject("XZ_Plane"), [""])
sketch15.MapMode = "FlatFace"
sketch15.AttachmentOffset = App.Placement(Vector(0, 0, 41.6), App.Rotation())
sketch15.addGeometry(Part.Circle(Vector(0, 0, 0), Vector(0, 0, 1), 1.6), False)
sketch15.addConstraint(Sketcher.Constraint("Coincident", 0, 3, -1, 1))
sketch15.addConstraint(Sketcher.Constraint("Diameter", 0, 3.2))
doc.recompute()
hole7 = body.newObject("PartDesign::Hole", "Hole006")
hole7.Profile = sketch15
hole7.ThreadType = "None"
hole7.Diameter = 3.2
hole7.DepthType = "ThroughAll"
hole7.Reversed = True

# Sketch on XZ plane
sketch16 = body.newObject("Sketcher::SketchObject", "Sketch015")
sketch16.AttachmentSupport = (doc.getObject("XZ_Plane"), [""])
sketch16.MapMode = "FlatFace"
sketch16.addGeometry(Part.Circle(Vector(82.48334, 0, 0), Vector(0, 0, 1), 1.6), False)
sketch16.addConstraint(Sketcher.Constraint("PointOnObject", 0, 3, -1))
sketch16.addConstraint(Sketcher.Constraint("Diameter", 0, 3.2))
sketch16.addConstraint(Sketcher.Constraint("DistanceX", -1, 1, 0, 3, 82.48334))
doc.recompute()
hole8 = body.newObject("PartDesign::Hole", "Hole007")
hole8.Profile = sketch16
hole8.ThreadType = "None"
hole8.Diameter = 3.2
hole8.DepthType = "Dimension"
hole8.Depth = 45.6
hole8.DrillPoint = "Flat"
hole8.Reversed = True

# Sketch on YZ plane
sketch17 = body.newObject("Sketcher::SketchObject", "Sketch016")
sketch17.AttachmentSupport = (doc.getObject("YZ_Plane"), [""])
sketch17.MapMode = "FlatFace"
sketch17.AttachmentOffset = App.Placement(Vector(0, 0, 61.24167), App.Rotation())
sketch17.addGeometry(Part.Circle(Vector(-12.8, 50.471143, 0), Vector(0, 0, 1), 1.5), False)
sketch17.addGeometry(Part.Circle(Vector(-32.8, 50.471143, 0), Vector(0, 0, 1), 1.5), False)
sketch17.addConstraint(Sketcher.Constraint("Equal", 0, 1))
sketch17.addConstraint(Sketcher.Constraint("Horizontal", 0, 3, 1, 3))
sketch17.addConstraint(Sketcher.Constraint("Diameter", 0, 3.0))
sketch17.addConstraint(Sketcher.Constraint("DistanceX", 1, 3, 0, 3, 20.0))
sketch17.addConstraint(Sketcher.Constraint("DistanceX", 0, 3, -1, 1, 12.8))
sketch17.addConstraint(Sketcher.Constraint("DistanceY", -1, 1, 0, 3, 50.471143))
doc.recompute()
hole9 = body.newObject("PartDesign::Hole", "Hole008")
hole9.Profile = sketch17
hole9.ThreadType = "None"
hole9.Diameter = 3
hole9.DepthType = "Dimension"
hole9.Depth = 71.24167
hole9.DrillPoint = "Flat"
doc.recompute()

fillet = body.newObject("PartDesign::Fillet", "Fillet")
fillet.Base = (hole9, edges_at(hole9, [(56.231, -22.8, 19.471), (26.253, -22.8, 19.471)]))
fillet.Radius = 10

doc.recompute()
